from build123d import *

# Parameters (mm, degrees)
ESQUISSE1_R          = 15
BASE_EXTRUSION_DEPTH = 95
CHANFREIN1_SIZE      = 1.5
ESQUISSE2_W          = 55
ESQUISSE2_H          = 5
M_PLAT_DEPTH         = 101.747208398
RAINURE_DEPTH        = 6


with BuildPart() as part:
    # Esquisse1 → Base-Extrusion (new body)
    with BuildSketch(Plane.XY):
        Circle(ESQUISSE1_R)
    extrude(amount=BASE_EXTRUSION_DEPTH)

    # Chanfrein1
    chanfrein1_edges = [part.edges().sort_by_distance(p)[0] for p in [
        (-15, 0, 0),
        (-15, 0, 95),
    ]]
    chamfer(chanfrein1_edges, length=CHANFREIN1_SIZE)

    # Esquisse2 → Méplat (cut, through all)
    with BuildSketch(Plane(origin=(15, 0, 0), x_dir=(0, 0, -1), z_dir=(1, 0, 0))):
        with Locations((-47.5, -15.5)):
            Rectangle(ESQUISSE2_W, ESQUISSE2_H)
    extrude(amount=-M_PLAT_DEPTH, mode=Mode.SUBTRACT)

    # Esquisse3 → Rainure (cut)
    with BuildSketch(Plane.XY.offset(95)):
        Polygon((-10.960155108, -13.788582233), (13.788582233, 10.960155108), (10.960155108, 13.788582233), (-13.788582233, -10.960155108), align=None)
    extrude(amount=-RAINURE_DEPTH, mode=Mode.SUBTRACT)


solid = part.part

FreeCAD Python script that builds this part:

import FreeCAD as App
import Part
import Sketcher
from FreeCAD import Vector
Q = App.Units.Quantity


def edges_at(feature, points):
    """Names of the edges that pass closest to the given points."""
    edges = feature.Shape.Edges
    near = lambda p: min(range(len(edges)), key=lambda i: edges[i].distToShape(Part.Vertex(*p))[0])
    return sorted({f"Edge{near(p) + 1}" for p in points})


def add_polygon(sketch, points):
    """Adds a closed chain of lines whose ends are joined by coincident constraints."""
    first, n = sketch.GeometryCount, len(points)
    for a, b in zip(points, points[1:] + points[:1]):
        sketch.addGeometry(Part.LineSegment(App.Vector(*a, 0), App.Vector(*b, 0)), False)
    for i in range(n):
        sketch.addConstraint(Sketcher.Constraint("Coincident", first + i, 2, first + (i + 1) % n, 1))

doc = App.newDocument("Part")
body = doc.addObject("PartDesign::Body", "Body")

# Sketch on XY plane
sketch1 = body.newObject("Sketcher::SketchObject", "Sketch")
sketch1.AttachmentSupport = (doc.getObject("XY_Plane"), [""])
sketch1.MapMode = "FlatFace"
sketch1.addGeometry(Part.Circle(Vector(0, 0, 0), Vector(0, 0, 1), 15), False)
sketch1.addConstraint([
    Sketcher.Constraint("Coincident", 0, 3, -1, 1),
    Sketcher.Constraint("Diameter", 0, Q("30 mm")),
])
pad1 = body.newObject("PartDesign::Pad", "Pad")
pad1.Profile = sketch1
pad1.Length = 95
doc.recompute()

chamfer = body.newObject("PartDesign::Chamfer", "Chamfer")
chamfer.Base = (pad1, edges_at(pad1, [(-15, 0, 0), (-15, 0, 95)]))
chamfer.Size = 1.5

# Sketch on YZ plane
sketch2 = body.newObject("Sketcher::SketchObject", "Sketch001")
sketch2.AttachmentSupport = (doc.getObject("YZ_Plane"), [""])
sketch2.MapMode = "FlatFace"
sketch2.AttachmentOffset = App.Placement(Vector(0, 0, 15), App.Rotation())
add_polygon(sketch2, [(-13, 75), (-18, 75), (-18, 20), (-13, 20)])  # lines 0-3
sketch2.addConstraint([
    Sketcher.Constraint("Horizontal", 0),
    Sketcher.Constraint("Vertical", 1),
    Sketcher.Constraint("Horizontal", 2),
    Sketcher.Constraint("Vertical", 3),
    Sketcher.Constraint("DistanceX", 0, 2, 0, 1, Q("5 mm")),
    Sketcher.Constraint("DistanceY", 1, 2, 1, 1, Q("55 mm")),
    Sketcher.Constraint("DistanceX", 0, 2, -1, 1, Q("18 mm")),
    Sketcher.Constraint("DistanceY", -1, 1, 0, 2, Q("75 mm")),
])
pocket1 = body.newObject("PartDesign::Pocket", "Pocket")
pocket1.Profile = sketch2
pocket1.Type = "ThroughAll"

# Sketch on XY plane
sketch3 = body.newObject("Sketcher::SketchObject", "Sketch002")
sketch3.AttachmentSupport = (doc.getObject("XY_Plane"), [""])
sketch3.MapMode = "FlatFace"
sketch3.AttachmentOffset = App.Placement(Vector(0, 0, 95), App.Rotation())
add_polygon(sketch3, [(-11, -13.8), (13.8, 11), (11, 13.8), (-13.8, -11)])  # lines 0-3
sketch3.addConstraint([
    Sketcher.Constraint("Symmetric", 0, 2, 2, 2, -1, 1),
    Sketcher.Constraint("Symmetric", 1, 2, 3, 2, -1, 1),
    Sketcher.Constraint("Perpendicular", 0, 1),
    Sketcher.Constraint("Angle", 0, Q("45 deg")),
    Sketcher.Constraint("Distance", 0, Q("35 mm")),
    Sketcher.Constraint("Distance", 1, Q("4 mm")),
])
pocket2 = body.newObject("PartDesign::Pocket", "Pocket001")
pocket2.Profile = sketch3
pocket2.Length = 6

doc.recompute()
